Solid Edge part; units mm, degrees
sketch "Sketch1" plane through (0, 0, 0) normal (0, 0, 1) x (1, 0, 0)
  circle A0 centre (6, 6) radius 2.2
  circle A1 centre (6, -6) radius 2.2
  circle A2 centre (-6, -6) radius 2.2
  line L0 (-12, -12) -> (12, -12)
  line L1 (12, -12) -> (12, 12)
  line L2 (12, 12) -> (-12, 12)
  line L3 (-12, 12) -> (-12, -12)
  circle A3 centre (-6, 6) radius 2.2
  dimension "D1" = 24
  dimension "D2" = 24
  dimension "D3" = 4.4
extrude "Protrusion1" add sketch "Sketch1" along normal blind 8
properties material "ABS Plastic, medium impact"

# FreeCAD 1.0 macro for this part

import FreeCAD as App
import Part
import Sketcher


def add_polygon(sketch, points):
    """Adds a closed chain of lines whose ends are joined by coincident constraints."""
    first, n = sketch.GeometryCount, len(points)
    for a, b in zip(points, points[1:] + points[:1]):
        sketch.addGeometry(Part.LineSegment(App.Vector(*a, 0), App.Vector(*b, 0)), False)
    for i in range(n):
        sketch.addConstraint(Sketcher.Constraint("Coincident", first + i, 2, first + (i + 1) % n, 1))

doc = App.newDocument("Part")
body = doc.addObject("PartDesign::Body", "Body")

# Sketch on XY plane
sketch1 = body.newObject("Sketcher::SketchObject", "Sketch")
sketch1.AttachmentSupport = (doc.getObject("XY_Plane"), [""])
sketch1.MapMode = "FlatFace"
add_polygon(sketch1, [(-12, 12), (-12, -12), (12, -12), (12, 12)])  # lines 0-3
sketch1.addGeometry(Part.Circle(App.Vector(-6, -6, 0), App.Vector(0, 0, 1), 2.2), False)  # 4
sketch1.addGeometry(Part.Circle(App.Vector(6, -6, 0), App.Vector(0, 0, 1), 2.2), False)  # 5
sketch1.addGeometry(Part.Circle(App.Vector(-6, 6, 0), App.Vector(0, 0, 1), 2.2), False)  # 6
sketch1.addGeometry(Part.Circle(App.Vector(6, 6, 0), App.Vector(0, 0, 1), 2.2), False)  # 7
sketch1.addConstraint(Sketcher.Constraint("Vertical", 0))
sketch1.addConstraint(Sketcher.Constraint("Horizontal", 1))
sketch1.addConstraint(Sketcher.Constraint("Vertical", 2))
sketch1.addConstraint(Sketcher.Constraint("Horizontal", 3))
sketch1.addConstraint(Sketcher.Constraint("Equal", 4, 5))
sketch1.addConstraint(Sketcher.Constraint("Equal", 5, 6))
sketch1.addConstraint(Sketcher.Constraint("Equal", 6, 7))
sketch1.addConstraint(Sketcher.Constraint("Symmetric", 5, 3, 6, 3, -1, 1))
sketch1.addConstraint(Sketcher.Constraint("Symmetric", 4, 3, 7, 3, -1, 1))
sketch1.addConstraint(Sketcher.Constraint("Symmetric", 0, 2, 2, 2, -1, 1))
sketch1.addConstraint(Sketcher.Constraint("Symmetric", 4, 3, 5, 3, -2))
sketch1.addConstraint(Sketcher.Constraint("Equal", 3, 0))
sketch1.addConstraint(Sketcher.Constraint("DistanceX", 0, 2, -1, 1, 12.0))
sketch1.addConstraint(Sketcher.Constraint("DistanceX", 4, 3, 5, 3, 12.0))
sketch1.addConstraint(Sketcher.Constraint("DistanceY", 4, 3, 6, 3, 12.0))
sketch1.addConstraint(Sketcher.Constraint("Diameter", 4, 4.4))
pad1 = body.newObject("PartDesign::Pad", "Pad")
pad1.Profile = sketch1
pad1.Length = 8

doc.recompute()
